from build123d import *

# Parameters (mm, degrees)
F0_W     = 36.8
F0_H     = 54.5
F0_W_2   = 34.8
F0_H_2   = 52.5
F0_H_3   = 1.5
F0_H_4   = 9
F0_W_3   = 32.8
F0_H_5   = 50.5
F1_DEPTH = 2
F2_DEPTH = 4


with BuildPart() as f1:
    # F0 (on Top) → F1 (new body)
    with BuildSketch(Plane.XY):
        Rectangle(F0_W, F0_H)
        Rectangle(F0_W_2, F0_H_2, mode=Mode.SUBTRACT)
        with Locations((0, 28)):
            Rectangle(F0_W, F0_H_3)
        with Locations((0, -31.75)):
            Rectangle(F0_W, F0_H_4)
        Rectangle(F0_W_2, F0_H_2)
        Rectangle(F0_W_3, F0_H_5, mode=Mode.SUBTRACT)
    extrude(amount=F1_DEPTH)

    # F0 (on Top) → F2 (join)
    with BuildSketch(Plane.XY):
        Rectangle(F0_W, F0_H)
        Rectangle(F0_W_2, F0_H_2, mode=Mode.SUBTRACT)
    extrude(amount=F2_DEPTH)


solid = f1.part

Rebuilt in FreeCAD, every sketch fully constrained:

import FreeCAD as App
import Part
import Sketcher
Q = App.Units.Quantity


def add_polygon(sketch, points):
    """Adds a closed chain of lines whose ends are joined by coincident constraints."""
    first, n = sketch.GeometryCount, len(points)
    for a, b in zip(points, points[1:] + points[:1]):
        sketch.addGeometry(Part.LineSegment(App.Vector(*a, 0), App.Vector(*b, 0)), False)
    for i in range(n):
        sketch.addConstraint(Sketcher.Constraint("Coincident", first + i, 2, first + (i + 1) % n, 1))

doc = App.newDocument("Part")
body = doc.addObject("PartDesign::Body", "Body")

sketch1 = doc.addObject("Sketcher::SketchObject", "Sketch")
body.addObject(sketch1)
sketch1.AttachmentSupport = (doc.XY_Plane, [""])
sketch1.MapMode = "FlatFace"
add_polygon(sketch1, [(18.4, 28.75), (-18.4, 28.75), (-18.4, -36.25), (18.4, -36.25)])
add_polygon(sketch1, [(16.4, -25.25), (-16.4, -25.25), (-16.4, 25.25), (16.4, 25.25)])
sketch1.addConstraint([
    Sketcher.Constraint("Horizontal", 0),
    Sketcher.Constraint("Vertical", 1),
    Sketcher.Constraint("Horizontal", 2),
    Sketcher.Constraint("Vertical", 3),
    Sketcher.Constraint("Horizontal", 4),
    Sketcher.Constraint("Vertical", 5),
    Sketcher.Constraint("Horizontal", 6),
    Sketcher.Constraint("Vertical", 7),
    Sketcher.Constraint("Symmetric", 4, 2, 6, 2, -1, 1),
    Sketcher.Constraint("DistanceY", 1, 2, 1, 1, Q("65 mm")),
    Sketcher.Constraint("DistanceX", 0, 2, 0, 1, Q("36.8 mm")),
    Sketcher.Constraint("DistanceX", 4, 2, 4, 1, Q("32.8 mm")),
    Sketcher.Constraint("DistanceY", 5, 1, 5, 2, Q("50.5 mm")),
    Sketcher.Constraint("DistanceX", 1, 2, 4, 2, Q("2 mm")),
    Sketcher.Constraint("DistanceY", 1, 2, 4, 2, Q("11 mm")),
])
pad1 = doc.addObject("PartDesign::Pad", "Pad")
body.addObject(pad1)
pad1.Profile = sketch1
pad1.Length = 2

sketch2 = doc.addObject("Sketcher::SketchObject", "Sketch001")
body.addObject(sketch2)
sketch2.AttachmentSupport = (doc.XY_Plane, [""])
sketch2.MapMode = "FlatFace"
add_polygon(sketch2, [(-18.4, 27.25), (-18.4, -27.25), (18.4, -27.25), (18.4, 27.25)])
add_polygon(sketch2, [(17.4, -26.25), (-17.4, -26.25), (-17.4, 26.25), (17.4, 26.25)])
sketch2.addConstraint([
    Sketcher.Constraint("Vertical", 0),
    Sketcher.Constraint("Horizontal", 1),
    Sketcher.Constraint("Vertical", 2),
    Sketcher.Constraint("Horizontal", 3),
    Sketcher.Constraint("Horizontal", 4),
    Sketcher.Constraint("Vertical", 5),
    Sketcher.Constraint("Horizontal", 6),
    Sketcher.Constraint("Vertical", 7),
    Sketcher.Constraint("Symmetric", 0, 2, 2, 2, -1, 1),
    Sketcher.Constraint("Symmetric", 4, 2, 6, 2, -1, 1),
    Sketcher.Constraint("DistanceX", 1, 1, 1, 2, Q("36.8 mm")),
    Sketcher.Constraint("DistanceX", 4, 2, 4, 1, Q("34.8 mm")),
    Sketcher.Constraint("DistanceY", 0, 2, 0, 1, Q("54.5 mm")),
    Sketcher.Constraint("DistanceY", 5, 1, 5, 2, Q("52.5 mm")),
])
pad2 = doc.addObject("PartDesign::Pad", "Pad001")
body.addObject(pad2)
pad2.Profile = sketch2
pad2.Length = 4

doc.recompute()
